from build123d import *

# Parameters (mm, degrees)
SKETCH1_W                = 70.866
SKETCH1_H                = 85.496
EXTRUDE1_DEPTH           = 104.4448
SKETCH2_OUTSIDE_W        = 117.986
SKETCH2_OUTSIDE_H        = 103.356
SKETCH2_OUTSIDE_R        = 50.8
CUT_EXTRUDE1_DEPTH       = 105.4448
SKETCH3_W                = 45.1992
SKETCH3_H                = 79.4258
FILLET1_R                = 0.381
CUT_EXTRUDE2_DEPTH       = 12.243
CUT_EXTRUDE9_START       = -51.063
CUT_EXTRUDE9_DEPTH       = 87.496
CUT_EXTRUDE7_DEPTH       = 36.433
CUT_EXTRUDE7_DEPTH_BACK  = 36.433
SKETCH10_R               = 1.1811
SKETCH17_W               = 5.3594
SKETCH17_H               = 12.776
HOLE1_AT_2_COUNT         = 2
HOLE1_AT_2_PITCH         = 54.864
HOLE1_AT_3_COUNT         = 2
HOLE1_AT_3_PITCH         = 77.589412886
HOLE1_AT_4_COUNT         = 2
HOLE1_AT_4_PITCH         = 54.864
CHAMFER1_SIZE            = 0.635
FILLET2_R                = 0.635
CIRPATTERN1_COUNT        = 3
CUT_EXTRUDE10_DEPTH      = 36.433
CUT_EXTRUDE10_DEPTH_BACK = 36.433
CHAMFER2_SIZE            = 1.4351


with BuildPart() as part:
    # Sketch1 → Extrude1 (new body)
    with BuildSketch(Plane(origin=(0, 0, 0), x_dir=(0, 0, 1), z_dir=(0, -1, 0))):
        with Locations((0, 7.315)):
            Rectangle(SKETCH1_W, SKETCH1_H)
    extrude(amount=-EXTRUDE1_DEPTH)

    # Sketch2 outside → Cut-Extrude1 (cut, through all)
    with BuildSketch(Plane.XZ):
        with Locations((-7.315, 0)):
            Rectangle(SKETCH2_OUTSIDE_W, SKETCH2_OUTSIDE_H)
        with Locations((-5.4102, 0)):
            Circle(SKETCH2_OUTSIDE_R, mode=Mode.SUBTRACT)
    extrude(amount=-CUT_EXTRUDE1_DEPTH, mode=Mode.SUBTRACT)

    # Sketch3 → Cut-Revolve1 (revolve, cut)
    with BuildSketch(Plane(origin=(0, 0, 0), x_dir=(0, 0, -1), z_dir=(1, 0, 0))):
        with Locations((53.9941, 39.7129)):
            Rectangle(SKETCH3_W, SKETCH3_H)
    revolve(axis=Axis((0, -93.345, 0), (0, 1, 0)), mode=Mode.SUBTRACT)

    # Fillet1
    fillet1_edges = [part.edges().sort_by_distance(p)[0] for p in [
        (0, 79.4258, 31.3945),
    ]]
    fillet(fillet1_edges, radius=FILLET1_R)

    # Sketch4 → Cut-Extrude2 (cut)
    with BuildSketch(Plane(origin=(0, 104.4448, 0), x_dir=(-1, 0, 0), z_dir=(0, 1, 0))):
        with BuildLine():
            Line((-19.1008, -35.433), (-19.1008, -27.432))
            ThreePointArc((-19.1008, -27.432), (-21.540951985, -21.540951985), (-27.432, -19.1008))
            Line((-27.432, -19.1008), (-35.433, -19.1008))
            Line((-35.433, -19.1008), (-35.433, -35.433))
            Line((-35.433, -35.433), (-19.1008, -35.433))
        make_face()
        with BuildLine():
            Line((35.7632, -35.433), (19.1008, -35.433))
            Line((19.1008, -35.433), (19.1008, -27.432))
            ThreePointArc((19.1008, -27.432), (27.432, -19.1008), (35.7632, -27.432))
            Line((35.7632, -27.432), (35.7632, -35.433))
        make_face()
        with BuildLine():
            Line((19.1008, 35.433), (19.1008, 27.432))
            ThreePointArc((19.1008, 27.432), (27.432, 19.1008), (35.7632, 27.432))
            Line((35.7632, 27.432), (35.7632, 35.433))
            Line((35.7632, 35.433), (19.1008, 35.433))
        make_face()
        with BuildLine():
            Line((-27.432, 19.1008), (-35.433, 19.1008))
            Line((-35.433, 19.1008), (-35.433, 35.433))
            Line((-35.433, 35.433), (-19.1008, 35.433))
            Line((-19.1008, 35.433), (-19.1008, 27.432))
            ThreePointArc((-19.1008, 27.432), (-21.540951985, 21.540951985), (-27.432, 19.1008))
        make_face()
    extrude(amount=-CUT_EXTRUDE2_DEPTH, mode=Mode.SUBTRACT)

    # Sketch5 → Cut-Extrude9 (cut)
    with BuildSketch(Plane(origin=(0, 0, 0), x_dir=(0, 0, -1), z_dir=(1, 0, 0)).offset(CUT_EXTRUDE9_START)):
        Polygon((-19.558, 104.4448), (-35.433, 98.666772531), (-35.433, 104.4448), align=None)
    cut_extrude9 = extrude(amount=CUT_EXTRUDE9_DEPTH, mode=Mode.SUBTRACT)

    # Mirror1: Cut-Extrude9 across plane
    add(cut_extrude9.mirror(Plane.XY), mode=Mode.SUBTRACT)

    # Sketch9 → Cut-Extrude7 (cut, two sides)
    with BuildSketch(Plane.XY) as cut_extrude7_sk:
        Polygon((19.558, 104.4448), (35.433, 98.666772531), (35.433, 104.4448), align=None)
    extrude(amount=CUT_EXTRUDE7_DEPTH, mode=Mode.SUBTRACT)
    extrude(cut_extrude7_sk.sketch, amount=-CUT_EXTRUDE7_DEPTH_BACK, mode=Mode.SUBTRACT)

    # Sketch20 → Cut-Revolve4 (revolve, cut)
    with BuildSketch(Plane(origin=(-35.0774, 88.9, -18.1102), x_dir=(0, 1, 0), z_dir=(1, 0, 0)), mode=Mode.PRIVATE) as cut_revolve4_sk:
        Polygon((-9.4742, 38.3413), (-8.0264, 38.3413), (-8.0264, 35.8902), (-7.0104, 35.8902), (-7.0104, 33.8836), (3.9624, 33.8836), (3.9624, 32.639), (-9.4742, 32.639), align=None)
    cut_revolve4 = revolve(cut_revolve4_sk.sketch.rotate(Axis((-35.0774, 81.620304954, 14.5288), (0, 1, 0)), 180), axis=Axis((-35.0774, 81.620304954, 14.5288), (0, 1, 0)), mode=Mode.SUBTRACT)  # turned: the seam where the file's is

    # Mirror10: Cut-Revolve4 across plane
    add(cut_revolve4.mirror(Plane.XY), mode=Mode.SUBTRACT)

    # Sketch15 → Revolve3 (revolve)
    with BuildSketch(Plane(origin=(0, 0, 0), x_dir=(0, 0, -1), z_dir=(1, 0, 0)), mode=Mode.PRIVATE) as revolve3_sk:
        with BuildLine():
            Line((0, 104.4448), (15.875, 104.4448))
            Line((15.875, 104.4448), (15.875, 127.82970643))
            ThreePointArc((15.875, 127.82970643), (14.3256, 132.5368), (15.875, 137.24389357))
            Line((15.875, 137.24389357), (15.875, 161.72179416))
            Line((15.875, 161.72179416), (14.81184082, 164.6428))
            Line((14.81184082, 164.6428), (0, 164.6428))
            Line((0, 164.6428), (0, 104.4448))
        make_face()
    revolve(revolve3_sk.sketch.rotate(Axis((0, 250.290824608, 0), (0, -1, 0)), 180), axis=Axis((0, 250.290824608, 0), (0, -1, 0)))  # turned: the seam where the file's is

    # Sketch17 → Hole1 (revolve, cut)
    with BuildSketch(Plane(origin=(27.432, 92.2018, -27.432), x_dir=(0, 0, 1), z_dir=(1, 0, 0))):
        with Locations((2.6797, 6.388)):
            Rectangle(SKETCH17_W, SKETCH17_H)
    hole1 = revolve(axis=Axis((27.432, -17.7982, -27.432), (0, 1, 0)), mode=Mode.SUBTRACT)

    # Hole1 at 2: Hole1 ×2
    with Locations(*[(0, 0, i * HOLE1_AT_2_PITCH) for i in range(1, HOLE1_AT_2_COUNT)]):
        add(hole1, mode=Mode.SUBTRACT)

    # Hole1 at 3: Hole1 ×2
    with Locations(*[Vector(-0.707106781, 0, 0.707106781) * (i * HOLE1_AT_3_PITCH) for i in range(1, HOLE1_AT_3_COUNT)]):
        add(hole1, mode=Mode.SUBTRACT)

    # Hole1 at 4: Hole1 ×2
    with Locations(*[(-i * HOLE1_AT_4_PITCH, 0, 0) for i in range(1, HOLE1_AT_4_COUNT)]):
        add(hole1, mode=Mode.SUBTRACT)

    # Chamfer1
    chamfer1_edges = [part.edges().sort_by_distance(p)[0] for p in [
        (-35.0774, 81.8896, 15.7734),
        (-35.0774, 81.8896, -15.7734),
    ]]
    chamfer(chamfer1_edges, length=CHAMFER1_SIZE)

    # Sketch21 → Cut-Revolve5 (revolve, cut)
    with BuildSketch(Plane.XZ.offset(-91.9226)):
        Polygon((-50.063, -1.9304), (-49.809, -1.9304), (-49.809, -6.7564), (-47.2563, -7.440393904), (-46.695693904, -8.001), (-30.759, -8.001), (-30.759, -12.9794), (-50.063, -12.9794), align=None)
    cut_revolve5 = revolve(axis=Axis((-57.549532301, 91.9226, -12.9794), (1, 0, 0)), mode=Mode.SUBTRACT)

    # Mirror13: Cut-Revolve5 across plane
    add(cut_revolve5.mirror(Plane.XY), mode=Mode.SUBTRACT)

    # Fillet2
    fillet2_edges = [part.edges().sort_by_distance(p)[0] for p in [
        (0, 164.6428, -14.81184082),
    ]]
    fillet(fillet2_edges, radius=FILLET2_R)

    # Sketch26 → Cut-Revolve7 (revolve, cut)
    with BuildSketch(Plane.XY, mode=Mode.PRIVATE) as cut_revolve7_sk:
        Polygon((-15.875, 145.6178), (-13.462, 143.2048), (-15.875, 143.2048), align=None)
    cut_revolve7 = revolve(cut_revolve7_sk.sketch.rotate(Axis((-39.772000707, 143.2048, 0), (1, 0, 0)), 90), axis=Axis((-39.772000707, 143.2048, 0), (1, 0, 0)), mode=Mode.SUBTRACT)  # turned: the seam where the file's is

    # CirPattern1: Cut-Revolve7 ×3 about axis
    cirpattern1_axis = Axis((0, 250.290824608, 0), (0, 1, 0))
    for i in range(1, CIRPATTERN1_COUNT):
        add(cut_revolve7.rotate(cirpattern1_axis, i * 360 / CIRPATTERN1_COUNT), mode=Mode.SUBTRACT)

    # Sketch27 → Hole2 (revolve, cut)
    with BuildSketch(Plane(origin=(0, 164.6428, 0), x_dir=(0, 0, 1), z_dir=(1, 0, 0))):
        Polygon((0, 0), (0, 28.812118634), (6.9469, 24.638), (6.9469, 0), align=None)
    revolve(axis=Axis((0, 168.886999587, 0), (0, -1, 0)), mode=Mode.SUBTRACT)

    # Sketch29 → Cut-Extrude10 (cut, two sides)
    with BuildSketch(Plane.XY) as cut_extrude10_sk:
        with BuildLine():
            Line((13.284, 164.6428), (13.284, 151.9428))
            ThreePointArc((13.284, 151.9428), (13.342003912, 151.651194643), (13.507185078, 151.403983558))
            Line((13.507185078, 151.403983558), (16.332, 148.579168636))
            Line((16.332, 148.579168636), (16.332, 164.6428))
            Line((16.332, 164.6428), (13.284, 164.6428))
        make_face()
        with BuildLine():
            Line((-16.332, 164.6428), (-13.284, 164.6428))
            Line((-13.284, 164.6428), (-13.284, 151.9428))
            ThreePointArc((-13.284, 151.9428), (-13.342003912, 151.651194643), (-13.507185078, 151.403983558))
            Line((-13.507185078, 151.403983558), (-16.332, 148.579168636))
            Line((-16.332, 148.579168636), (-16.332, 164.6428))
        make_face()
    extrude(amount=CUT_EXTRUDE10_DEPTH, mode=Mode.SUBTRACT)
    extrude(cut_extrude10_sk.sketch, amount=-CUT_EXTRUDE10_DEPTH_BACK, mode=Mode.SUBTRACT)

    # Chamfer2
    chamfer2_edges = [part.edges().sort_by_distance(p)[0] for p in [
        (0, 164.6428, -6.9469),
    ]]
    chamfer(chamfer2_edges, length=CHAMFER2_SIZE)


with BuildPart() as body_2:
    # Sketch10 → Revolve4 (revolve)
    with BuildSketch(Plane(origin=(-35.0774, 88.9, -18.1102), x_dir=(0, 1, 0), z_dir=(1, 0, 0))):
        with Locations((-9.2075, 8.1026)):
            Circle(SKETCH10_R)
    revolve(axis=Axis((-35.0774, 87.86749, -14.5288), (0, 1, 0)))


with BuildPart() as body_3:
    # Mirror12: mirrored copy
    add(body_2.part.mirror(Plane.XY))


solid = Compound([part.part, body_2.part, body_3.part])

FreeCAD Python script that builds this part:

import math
import FreeCAD as App
import Part
import Sketcher
from FreeCAD import Vector
Q = App.Units.Quantity


def edges_at(feature, points):
    """Names of the edges that pass closest to the given points."""
    edges = feature.Shape.Edges
    near = lambda p: min(range(len(edges)), key=lambda i: edges[i].distToShape(Part.Vertex(*p))[0])
    return sorted({f"Edge{near(p) + 1}" for p in points})


def add_polygon(sketch, points):
    """Adds a closed chain of lines whose ends are joined by coincident constraints."""
    first, n = sketch.GeometryCount, len(points)
    for a, b in zip(points, points[1:] + points[:1]):
        sketch.addGeometry(Part.LineSegment(App.Vector(*a, 0), App.Vector(*b, 0)), False)
    for i in range(n):
        sketch.addConstraint(Sketcher.Constraint("Coincident", first + i, 2, first + (i + 1) % n, 1))

doc = App.newDocument("Part")
body = doc.addObject("PartDesign::Body", "Body")

sketch1 = body.newObject("Sketcher::SketchObject", "Sketch")
sketch1.AttachmentSupport = (doc.getObject("XZ_Plane"), [""])
sketch1.MapMode = "FlatFace"
add_polygon(sketch1, [(-50, -35), (35, -35), (35, 35), (-50, 35)])
sketch1.addConstraint([
    Sketcher.Constraint("Horizontal", 0),
    Sketcher.Constraint("Vertical", 1),
    Sketcher.Constraint("Horizontal", 2),
    Sketcher.Constraint("Vertical", 3),
    Sketcher.Constraint("DistanceY", 1, 1, 1, 2, Q("2.79 in")),
    Sketcher.Constraint("DistanceX", -1, 1, 0, 2, Q("1.395 in")),
    Sketcher.Constraint("DistanceY", 0, 2, -1, 1, Q("1.395 in")),
    Sketcher.Constraint("DistanceX", 0, 1, 0, 2, 85.496),
])
pad1 = body.newObject("PartDesign::Pad", "Pad")
pad1.Profile = sketch1
pad1.Length = Q("4.112 in")
pad1.Reversed = True

sketch2 = body.newObject("Sketcher::SketchObject", "Sketch001")
sketch2.AttachmentSupport = (doc.getObject("XZ_Plane"), [""])
sketch2.MapMode = "FlatFace"
add_polygon(sketch2, [(-66, 52), (-66, -52), (52, -52), (52, 52)])
sketch2.addGeometry(Part.Circle(Vector(-5, 0, 0), Vector(0, 0, 1), 51), False)
sketch2.addConstraint([
    Sketcher.Constraint("Vertical", 0),
    Sketcher.Constraint("Horizontal", 1),
    Sketcher.Constraint("Vertical", 2),
    Sketcher.Constraint("Horizontal", 3),
    Sketcher.Constraint("PointOnObject", 4, 3, -1),
    Sketcher.Constraint("Diameter", 4, Q("4 in")),
    Sketcher.Constraint("DistanceX", 4, 3, -1, 1, Q("0.213 in")),
    Sketcher.Constraint("DistanceX", 1, 1, 1, 2, 117.986),
    Sketcher.Constraint("DistanceY", 0, 2, 0, 1, 103.356),
    Sketcher.Constraint("DistanceX", 0, 2, -1, 1, 66.308),
    Sketcher.Constraint("DistanceY", 0, 2, -1, 1, 51.678),
])
pocket1 = body.newObject("PartDesign::Pocket", "Pocket")
pocket1.Profile = sketch2
pocket1.Type = "ThroughAll"

sketch3 = body.newObject("Sketcher::SketchObject", "Sketch002")
sketch3.AttachmentSupport = (doc.getObject("YZ_Plane"), [""])
sketch3.MapMode = "FlatFace"
add_polygon(sketch3, [(79, -31), (0, -31), (0, -77), (79, -77)])
sketch3.addConstraint([
    Sketcher.Constraint("Horizontal", 0),
    Sketcher.Constraint("Vertical", 1),
    Sketcher.Constraint("Horizontal", 2),
    Sketcher.Constraint("Vertical", 3),
    Sketcher.Constraint("PointOnObject", 0, 2, -2),
    Sketcher.Constraint("DistanceX", 0, 2, 0, 1, Q("3.127 in")),
    Sketcher.Constraint("DistanceY", 1, 2, 1, 1, 45.1992),
    Sketcher.Constraint("DistanceY", 1, 2, -1, 1, Q("3.0155 in")),
])
groove = body.newObject("PartDesign::Groove", "Groove")
groove.Profile = sketch3
groove.ReferenceAxis = (sketch3, ["H_Axis"])
groove.Angle = 360
doc.recompute()

fillet = body.newObject("PartDesign::Fillet", "Fillet")
fillet.Base = (groove, edges_at(groove, [(0, 79.426, 31.395)]))
fillet.Radius = Q("0.015 in")

sketch4 = body.newObject("Sketcher::SketchObject", "Sketch003")
sketch4.AttachmentSupport = (doc.getObject("XZ_Plane"), [""])
sketch4.MapMode = "FlatFace"
sketch4.AttachmentOffset = App.Placement(Vector(0, 0, -4.112 * 25.4), App.Rotation())
sketch4.addGeometry([
    Part.LineSegment(Vector(19, -35, 0), Vector(19, -27, 0)),
    Part.ArcOfCircle(Part.Circle(Vector(27, -27, 0), Vector(0, 0, 1), 8), math.radians(90), math.radians(180)),
    Part.LineSegment(Vector(27, -19, 0), Vector(35, -19, 0)),
    Part.LineSegment(Vector(35, -19, 0), Vector(35, -35, 0)),
    Part.LineSegment(Vector(35, -35, 0), Vector(19, -35, 0)),
    Part.LineSegment(Vector(-19, -35, 0), Vector(-36, -35, 0)),
    Part.LineSegment(Vector(-36, -35, 0), Vector(-36, -27, 0)),
    Part.ArcOfCircle(Part.Circle(Vector(-27, -27, 0), Vector(0, 0, 1), 8), math.radians(0), math.radians(180)),
    Part.LineSegment(Vector(-19, -27, 0), Vector(-19, -35, 0)),
    Part.LineSegment(Vector(-19, 35, 0), Vector(-19, 27, 0)),
    Part.ArcOfCircle(Part.Circle(Vector(-27, 27, 0), Vector(0, 0, 1), 8), math.radians(180), math.radians(360)),
    Part.LineSegment(Vector(-36, 27, 0), Vector(-36, 35, 0)),
    Part.LineSegment(Vector(-36, 35, 0), Vector(-19, 35, 0)),
    Part.LineSegment(Vector(35, 19, 0), Vector(27, 19, 0)),
    Part.ArcOfCircle(Part.Circle(Vector(27, 27, 0), Vector(0, 0, 1), 8), math.radians(-180), math.radians(-90)),
    Part.LineSegment(Vector(19, 27, 0), Vector(19, 35, 0)),
    Part.LineSegment(Vector(19, 35, 0), Vector(35, 35, 0)),
    Part.LineSegment(Vector(35, 35, 0), Vector(35, 19, 0)),
], False)
sketch4.addConstraint([
    Sketcher.Constraint("Tangent", 0, 2, 1, 2),
    Sketcher.Constraint("Tangent", 1, 1, 2, 1),
    Sketcher.Constraint("Coincident", 2, 2, 3, 1),
    Sketcher.Constraint("Coincident", 3, 2, 4, 1),
    Sketcher.Constraint("Coincident", 4, 2, 0, 1),
    Sketcher.Constraint("Coincident", 5, 2, 6, 1),
    Sketcher.Constraint("Tangent", 6, 2, 7, 2),
    Sketcher.Constraint("Tangent", 7, 1, 8, 1),
    Sketcher.Constraint("Coincident", 8, 2, 5, 1),
    Sketcher.Constraint("Tangent", 9, 2, 10, 2),
    Sketcher.Constraint("Tangent", 10, 1, 11, 1),
    Sketcher.Constraint("Coincident", 11, 2, 12, 1),
    Sketcher.Constraint("Coincident", 12, 2, 9, 1),
    Sketcher.Constraint("Tangent", 13, 2, 14, 2),
    Sketcher.Constraint("Tangent", 14, 1, 15, 1),
    Sketcher.Constraint("Coincident", 15, 2, 16, 1),
    Sketcher.Constraint("Coincident", 16, 2, 17, 1),
    Sketcher.Constraint("Coincident", 17, 2, 13, 1),
    Sketcher.Constraint("Vertical", 0),
    Sketcher.Constraint("Horizontal", 2),
    Sketcher.Constraint("Vertical", 3),
    Sketcher.Constraint("Horizontal", 4),
    Sketcher.Constraint("Horizontal", 5),
    Sketcher.Constraint("Vertical", 6),
    Sketcher.Constraint("Vertical", 8),
    Sketcher.Constraint("Vertical", 9),
    Sketcher.Constraint("Vertical", 11),
    Sketcher.Constraint("Horizontal", 12),
    Sketcher.Constraint("Horizontal", 13),
    Sketcher.Constraint("Vertical", 15),
    Sketcher.Constraint("Horizontal", 16),
    Sketcher.Constraint("Vertical", 17),
    Sketcher.Constraint("Equal", 1, 7),
    Sketcher.Constraint("Equal", 7, 10),
    Sketcher.Constraint("Equal", 10, 14),
    Sketcher.Constraint("Symmetric", 1, 3, 10, 3, -1, 1),
    Sketcher.Constraint("Symmetric", 7, 3, 14, 3, -1, 1),
    Sketcher.Constraint("Symmetric", 1, 3, 7, 3, -2),
    Sketcher.Constraint("Symmetric", 3, 2, 16, 2, -1),
    Sketcher.Constraint("Horizontal", 4, 2, 5, 2),
    Sketcher.Constraint("Horizontal", 12, 2, 15, 2),
    Sketcher.Constraint("Equal", 13, 0),
    Sketcher.Constraint("Radius", 1, Q("0.328 in")),
    Sketcher.Constraint("DistanceX", 2, 1, 2, 2, Q("0.315 in")),
    Sketcher.Constraint("DistanceX", -1, 1, 1, 3, Q("1.08 in")),
    Sketcher.Constraint("DistanceY", 1, 3, -1, 1, Q("1.08 in")),
])
pocket2 = body.newObject("PartDesign::Pocket", "Pocket001")
pocket2.Profile = sketch4
pocket2.Length = 12.243
pocket2.Reversed = True

sketch5 = body.newObject("Sketcher::SketchObject", "Sketch004")
sketch5.AttachmentSupport = (doc.getObject("YZ_Plane"), [""])
sketch5.MapMode = "FlatFace"
sketch5.AttachmentOffset = App.Placement(Vector(0, 0, -51.063), App.Rotation())
add_polygon(sketch5, [(99, 35), (104, 20), (104, 35)])
sketch5.addConstraint([
    Sketcher.Constraint("Vertical", 1),
    Sketcher.Constraint("Horizontal", 2),
    Sketcher.Constraint("Angle", 0, Q("-70 deg")),
    Sketcher.Constraint("DistanceY", 1, 1, 1, 2, Q("0.625 in")),
    Sketcher.Constraint("DistanceY", -1, 1, 0, 2, Q("0.77 in")),
    Sketcher.Constraint("DistanceX", -1, 1, 0, 2, Q("4.112 in")),
])
pocket3 = body.newObject("PartDesign::Pocket", "Pocket002")
pocket3.Profile = sketch5
pocket3.Length = 87.496
pocket3.Reversed = True
doc.recompute()

mirrored = body.newObject("PartDesign::Mirrored", "Mirrored")
mirrored.Originals = [pocket3]
mirrored.MirrorPlane = (doc.getObject("XY_Plane"), [""])
body.Tip = mirrored

sketch6 = body.newObject("Sketcher::SketchObject", "Sketch005")
sketch6.AttachmentSupport = (doc.getObject("XY_Plane"), [""])
sketch6.MapMode = "FlatFace"
add_polygon(sketch6, [(20, 104), (35, 99), (35, 104)])
sketch6.addConstraint([
    Sketcher.Constraint("Vertical", 1),
    Sketcher.Constraint("Horizontal", 2),
    Sketcher.Constraint("Angle", 0, Q("-20 deg")),
    Sketcher.Constraint("DistanceX", 2, 2, 2, 1, Q("0.625 in")),
    Sketcher.Constraint("DistanceX", -1, 1, 2, 2, Q("0.77 in")),
    Sketcher.Constraint("DistanceY", -1, 1, 1, 2, Q("4.112 in")),
])
pocket4 = body.newObject("PartDesign::Pocket", "Pocket003")
pocket4.Profile = sketch6
pocket4.Type = "ThroughAll"
pocket4.Midplane = True

sketch7 = body.newObject("Sketcher::SketchObject", "Sketch006")
sketch7.AttachmentSupport = (doc.getObject("YZ_Plane"), [""])
sketch7.MapMode = "FlatFace"
sketch7.AttachmentOffset = App.Placement(Vector(0, 0, -1.381 * 25.4), App.Rotation())
add_polygon(sketch7, [(80.9, 20.2), (79.4, 20.2), (79.4, 14.5), (92.9, 14.5), (92.9, 15.8), (81.9, 15.8), (81.9, 17.8), (80.9, 17.8)])
sketch7.addGeometry(Part.LineSegment(Vector(79.4, 14.5, 0), Vector(92.9, 14.5, 0)), True)
sketch7.addConstraint([
    Sketcher.Constraint("Horizontal", 0),
    Sketcher.Constraint("Vertical", 1),
    Sketcher.Constraint("Horizontal", 2),
    Sketcher.Constraint("Vertical", 3),
    Sketcher.Constraint("Horizontal", 4),
    Sketcher.Constraint("Vertical", 5),
    Sketcher.Constraint("Horizontal", 6),
    Sketcher.Constraint("Vertical", 7),
    Sketcher.Constraint("Horizontal", 8),
    Sketcher.Constraint("Coincident", 8, 1, 1, 2),
    Sketcher.Constraint("Vertical", 3, 2, 8, 2),
    Sketcher.Constraint("DistanceX", 6, 2, 6, 1, Q("0.04 in")),
    Sketcher.Constraint("DistanceY", -1, 1, 5, 2, Q("0.7 in")),
    Sketcher.Constraint("DistanceX", 0, 2, 0, 1, Q("0.057 in")),
    Sketcher.Constraint("DistanceX", 2, 1, 2, 2, Q("0.529 in")),
    Sketcher.Constraint("DistanceY", 3, 1, 3, 2, Q("0.049 in")),
    Sketcher.Constraint("DistanceY", 5, 1, 5, 2, Q("0.079 in")),
    Sketcher.Constraint("DistanceY", 1, 2, 1, 1, Q("0.2245 in")),
    Sketcher.Constraint("DistanceX", -1, 1, 0, 2, Q("3.127 in")),
])
groove2 = body.newObject("PartDesign::Groove", "Groove001")
groove2.Profile = sketch7
groove2.ReferenceAxis = (sketch7, ["Axis0"])
groove2.Angle = 360
doc.recompute()

mirrored2 = body.newObject("PartDesign::Mirrored", "Mirrored001")
mirrored2.Originals = [groove2]
mirrored2.MirrorPlane = (doc.getObject("XY_Plane"), [""])
body.Tip = mirrored2

sketch8 = body.newObject("Sketcher::SketchObject", "Sketch007")
sketch8.AttachmentSupport = (doc.getObject("YZ_Plane"), [""])
sketch8.MapMode = "FlatFace"
sketch8.addGeometry([
    Part.LineSegment(Vector(104.4, 0, 0), Vector(104.4, -15.9, 0)),
    Part.LineSegment(Vector(104.4, -15.9, 0), Vector(127.8, -15.9, 0)),
    Part.ArcOfCircle(Part.Circle(Vector(132.5, -22.3, 0), Vector(0, 0, 1), 7.9), math.radians(54), math.radians(126)),
    Part.LineSegment(Vector(137.2, -15.9, 0), Vector(161.7, -15.9, 0)),
    Part.LineSegment(Vector(161.7, -15.9, 0), Vector(164.6, -14.8, 0)),
    Part.LineSegment(Vector(164.6, -14.8, 0), Vector(164.6, 0, 0)),
    Part.LineSegment(Vector(164.6, 0, 0), Vector(104.4, 0, 0)),
], False)
sketch8.addConstraint([
    Sketcher.Constraint("Coincident", 0, 2, 1, 1),
    Sketcher.Constraint("Coincident", 1, 2, 2, 2),
    Sketcher.Constraint("Coincident", 2, 1, 3, 1),
    Sketcher.Constraint("Coincident", 3, 2, 4, 1),
    Sketcher.Constraint("Coincident", 4, 2, 5, 1),
    Sketcher.Constraint("Coincident", 5, 2, 6, 1),
    Sketcher.Constraint("Coincident", 6, 2, 0, 1),
    Sketcher.Constraint("Vertical", 0),
    Sketcher.Constraint("Horizontal", 1),
    Sketcher.Constraint("Horizontal", 3),
    Sketcher.Constraint("Vertical", 5),
    Sketcher.Constraint("Horizontal", 6),
    Sketcher.Constraint("PointOnObject", 5, 2, -1),
    Sketcher.Constraint("Horizontal", 1, 2, 2, 1),
    Sketcher.Constraint("Angle", 4, Q("20 deg")),
    Sketcher.Constraint("Radius", 2, Q("0.312 in")),
    Sketcher.Constraint("DistanceX", 6, 2, 6, 1, Q("2.37 in")),
    Sketcher.Constraint("DistanceY", 0, 2, 0, 1, Q("0.625 in")),
    Sketcher.Constraint("DistanceY", 2, 3, -1, 1, Q("0.876 in")),
    Sketcher.Constraint("DistanceX", -1, 1, 0, 2, Q("4.112 in")),
    Sketcher.Constraint("DistanceX", 3, 1, 3, 2, 24.477901),
    Sketcher.Constraint("DistanceY", 5, 1, 5, 2, 14.811841),
])
revolution = body.newObject("PartDesign::Revolution", "Revolution")
revolution.Profile = sketch8
revolution.ReferenceAxis = (sketch8, ["H_Axis"])
revolution.Angle = 360

sketch9 = body.newObject("Sketcher::SketchObject", "Sketch008")
sketch9.AttachmentSupport = (doc.getObject("YZ_Plane"), [""])
sketch9.MapMode = "FlatFace"
sketch9.AttachmentOffset = App.Placement(Vector(0, 0, 1.08 * 25.4), App.Rotation())
add_polygon(sketch9, [(79, -27), (92, -27), (92, -22), (79, -22)])
sketch9.addGeometry(Part.LineSegment(Vector(79, -27, 0), Vector(92, -27, 0)), True)
sketch9.addConstraint([
    Sketcher.Constraint("Horizontal", 0),
    Sketcher.Constraint("Vertical", 1),
    Sketcher.Constraint("Horizontal", 2),
    Sketcher.Constraint("Vertical", 3),
    Sketcher.Constraint("Horizontal", 4),
    Sketcher.Constraint("Coincident", 4, 1, 3, 2),
    Sketcher.Constraint("Vertical", 1, 2, 4, 2),
    Sketcher.Constraint("DistanceY", 1, 1, 1, 2, Q("0.211 in")),
    Sketcher.Constraint("DistanceY", 0, 2, -1, 1, Q("1.08 in")),
    Sketcher.Constraint("DistanceX", -1, 1, 2, 2, Q("3.127 in")),
    Sketcher.Constraint("DistanceX", 0, 1, 0, 2, 12.776),
])
groove3 = body.newObject("PartDesign::Groove", "Groove002")
groove3.Profile = sketch9
groove3.ReferenceAxis = (sketch9, ["Axis0"])
groove3.Angle = 360
doc.recompute()

linearpattern = body.newObject("PartDesign::LinearPattern", "LinearPattern")
linearpattern.Originals = [groove3]
linearpattern.Direction = (doc.getObject("Z_Axis"), [""])
linearpattern.Mode = "offset"
linearpattern.Offset = Q("2.16 in")
linearpattern.Occurrences = 2
body.Tip = linearpattern
doc.recompute()

datumline = body.newObject("PartDesign::Line", "DatumLine")
datumline.Placement = App.Placement(Vector(0, 0, 0), App.Rotation(Vector(0, 0, 1), Vector(-0.707106781, 0, 0.707106781)))
linearpattern2 = body.newObject("PartDesign::LinearPattern", "LinearPattern001")
linearpattern2.Originals = [groove3]
linearpattern2.Direction = (datumline, [""])
linearpattern2.Mode = "offset"
linearpattern2.Offset = 77.589413
linearpattern2.Occurrences = 2
body.Tip = linearpattern2
doc.recompute()

linearpattern3 = body.newObject("PartDesign::LinearPattern", "LinearPattern002")
linearpattern3.Originals = [groove3]
linearpattern3.Direction = (doc.getObject("X_Axis"), [""])
linearpattern3.Mode = "offset"
linearpattern3.Offset = Q("2.16 in")
linearpattern3.Occurrences = 2
linearpattern3.Reversed = True
body.Tip = linearpattern3
doc.recompute()

chamfer = body.newObject("PartDesign::Chamfer", "Chamfer")
chamfer.Base = (linearpattern3, edges_at(linearpattern3, [(-35.077, 81.89, 15.773), (-35.077, 81.89, -15.773)]))
chamfer.Size = Q("0.025 in")

sketch10 = body.newObject("Sketcher::SketchObject", "Sketch009")
sketch10.AttachmentSupport = (doc.getObject("XZ_Plane"), [""])
sketch10.MapMode = "FlatFace"
sketch10.AttachmentOffset = App.Placement(Vector(0, 0, -3.619 * 25.4), App.Rotation())
add_polygon(sketch10, [(-49.81, -1.93), (-50.06, -1.93), (-50.06, -12.98), (-30.76, -12.98), (-30.76, -8), (-46.7, -8), (-47.26, -7.44), (-49.81, -6.76)])
sketch10.addGeometry(Part.LineSegment(Vector(-50.06, -12.98, 0), Vector(-30.76, -12.98, 0)), True)
sketch10.addConstraint([
    Sketcher.Constraint("Horizontal", 0),
    Sketcher.Constraint("Vertical", 1),
    Sketcher.Constraint("Horizontal", 2),
    Sketcher.Constraint("Vertical", 3),
    Sketcher.Constraint("Horizontal", 4),
    Sketcher.Constraint("Vertical", 7),
    Sketcher.Constraint("Horizontal", 8),
    Sketcher.Constraint("Coincident", 8, 1, 1, 2),
    Sketcher.Constraint("Vertical", 3, 2, 8, 2),
    Sketcher.Constraint("Angle", 5, Q("135 deg")),
    Sketcher.Constraint("Angle", 6, Q("165 deg")),
    Sketcher.Constraint("DistanceX", 0, 2, 0, 1, Q("0.01 in")),
    Sketcher.Constraint("DistanceX", 2, 1, 2, 2, Q("0.76 in")),
    Sketcher.Constraint("DistanceY", 7, 1, 7, 2, Q("0.19 in")),
    Sketcher.Constraint("DistanceY", 1, 2, 1, 1, Q("0.435 in")),
    Sketcher.Constraint("DistanceY", 3, 1, 3, 2, Q("0.196 in")),
    Sketcher.Constraint("DistanceY", 0, 2, -1, 1, Q("0.076 in")),
    Sketcher.Constraint("DistanceX", 0, 2, 5, 2, Q("0.1105 in")),
    Sketcher.Constraint("DistanceX", 0, 2, -1, 1, 50.063),
])
groove4 = body.newObject("PartDesign::Groove", "Groove003")
groove4.Profile = sketch10
groove4.ReferenceAxis = (sketch10, ["Axis0"])
groove4.Angle = 360
doc.recompute()

mirrored3 = body.newObject("PartDesign::Mirrored", "Mirrored002")
mirrored3.Originals = [groove4]
mirrored3.MirrorPlane = (doc.getObject("XY_Plane"), [""])
body.Tip = mirrored3
doc.recompute()

fillet2 = body.newObject("PartDesign::Fillet", "Fillet001")
fillet2.Base = (mirrored3, edges_at(mirrored3, [(0, 164.643, -14.812)]))
fillet2.Radius = Q("0.025 in")

sketch11 = body.newObject("Sketcher::SketchObject", "Sketch010")
sketch11.AttachmentSupport = (doc.getObject("XY_Plane"), [""])
sketch11.MapMode = "FlatFace"
add_polygon(sketch11, [(-13.5, 143.2), (-15.9, 145.6), (-15.9, 143.2)])
sketch11.addGeometry(Part.LineSegment(Vector(-15.9, 143.2, 0), Vector(-13.5, 143.2, 0)), True)
sketch11.addConstraint([
    Sketcher.Constraint("Vertical", 1),
    Sketcher.Constraint("Horizontal", 2),
    Sketcher.Constraint("Horizontal", 3),
    Sketcher.Constraint("Coincident", 3, 1, 1, 2),
    Sketcher.Constraint("Equal", 2, 3),
    Sketcher.Constraint("Equal", 3, 1),
    Sketcher.Constraint("DistanceX", 2, 1, 2, 2, Q("0.095 in")),
    Sketcher.Constraint("DistanceX", 2, 2, -1, 1, Q("0.53 in")),
    Sketcher.Constraint("DistanceY", -1, 1, 0, 2, 145.6178),
])
groove5 = body.newObject("PartDesign::Groove", "Groove004")
groove5.Profile = sketch11
groove5.ReferenceAxis = (sketch11, ["Axis0"])
groove5.Angle = 360
doc.recompute()

polarpattern = body.newObject("PartDesign::PolarPattern", "PolarPattern")
polarpattern.Originals = [groove5]
polarpattern.Axis = (doc.getObject("Y_Axis"), [""])
polarpattern.Angle = 360
polarpattern.Occurrences = 3
body.Tip = polarpattern

sketch12 = body.newObject("Sketcher::SketchObject", "Sketch011")
sketch12.AttachmentSupport = (doc.getObject("YZ_Plane"), [""])
sketch12.MapMode = "FlatFace"
add_polygon(sketch12, [(136, 0), (165, 0), (165, 7), (140, 7)])
sketch12.addConstraint([
    Sketcher.Constraint("Horizontal", 0),
    Sketcher.Constraint("Vertical", 1),
    Sketcher.Constraint("Horizontal", 2),
    Sketcher.Constraint("PointOnObject", 0, 2, -1),
    Sketcher.Constraint("Angle", 3, Q("-121 deg")),
    Sketcher.Constraint("DistanceX", 2, 2, 2, 1, Q("0.97 in")),
    Sketcher.Constraint("DistanceY", 1, 1, 1, 2, Q("0.2735 in")),
    Sketcher.Constraint("DistanceX", -1, 1, 0, 2, Q("6.482 in")),
])
groove6 = body.newObject("PartDesign::Groove", "Groove005")
groove6.Profile = sketch12
groove6.ReferenceAxis = (sketch12, ["H_Axis"])
groove6.Angle = 360

sketch13 = body.newObject("Sketcher::SketchObject", "Sketch012")
sketch13.AttachmentSupport = (doc.getObject("XY_Plane"), [""])
sketch13.MapMode = "FlatFace"
sketch13.addGeometry([
    Part.LineSegment(Vector(13.3, 164.6, 0), Vector(13.3, 151.9, 0)),
    Part.ArcOfCircle(Part.Circle(Vector(14, 151.9, 0), Vector(0, 0, 1), 0.8), math.radians(180), math.radians(225)),
    Part.LineSegment(Vector(13.5, 151.4, 0), Vector(16.3, 148.6, 0)),
    Part.LineSegment(Vector(16.3, 148.6, 0), Vector(16.3, 164.6, 0)),
    Part.LineSegment(Vector(16.3, 164.6, 0), Vector(13.3, 164.6, 0)),
    Part.LineSegment(Vector(-13.3, 164.6, 0), Vector(-16.3, 164.6, 0)),
    Part.LineSegment(Vector(-16.3, 164.6, 0), Vector(-16.3, 148.6, 0)),
    Part.LineSegment(Vector(-16.3, 148.6, 0), Vector(-13.5, 151.4, 0)),
    Part.ArcOfCircle(Part.Circle(Vector(-14, 151.9, 0), Vector(0, 0, 1), 0.8), math.radians(-45), math.radians(0)),
    Part.LineSegment(Vector(-13.3, 151.9, 0), Vector(-13.3, 164.6, 0)),
], False)
sketch13.addConstraint([
    Sketcher.Constraint("Tangent", 0, 2, 1, 1),
    Sketcher.Constraint("Tangent", 1, 2, 2, 1),
    Sketcher.Constraint("Coincident", 2, 2, 3, 1),
    Sketcher.Constraint("Coincident", 3, 2, 4, 1),
    Sketcher.Constraint("Coincident", 4, 2, 0, 1),
    Sketcher.Constraint("Coincident", 5, 2, 6, 1),
    Sketcher.Constraint("Coincident", 6, 2, 7, 1),
    Sketcher.Constraint("Tangent", 7, 2, 8, 1),
    Sketcher.Constraint("Tangent", 8, 2, 9, 1),
    Sketcher.Constraint("Coincident", 9, 2, 5, 1),
    Sketcher.Constraint("Vertical", 0),
    Sketcher.Constraint("Vertical", 3),
    Sketcher.Constraint("Horizontal", 4),
    Sketcher.Constraint("Horizontal", 5),
    Sketcher.Constraint("Vertical", 6),
    Sketcher.Constraint("Vertical", 9),
    Sketcher.Constraint("Equal", 1, 8),
    Sketcher.Constraint("Symmetric", 1, 3, 8, 3, -2),
    Sketcher.Constraint("Symmetric", 3, 2, 5, 2, -2),
    Sketcher.Constraint("Perpendicular", 2, 7),
    Sketcher.Constraint("Horizontal", 2, 2, 6, 2),
    Sketcher.Constraint("Radius", 1, Q("0.0300001 in")),
    Sketcher.Constraint("DistanceY", 0, 2, 0, 1, Q("0.5 in")),
    Sketcher.Constraint("DistanceX", 4, 2, 4, 1, Q("0.12 in")),
    Sketcher.Constraint("DistanceY", -1, 1, 1, 3, Q("5.982 in")),
    Sketcher.Constraint("DistanceX", -1, 1, 1, 3, 14.046002),
])
pocket5 = body.newObject("PartDesign::Pocket", "Pocket004")
pocket5.Profile = sketch13
pocket5.Type = "ThroughAll"
pocket5.Midplane = True
doc.recompute()

chamfer2 = body.newObject("PartDesign::Chamfer", "Chamfer001")
chamfer2.Base = (pocket5, edges_at(pocket5, [(0, 164.643, -6.947)]))
chamfer2.Size = Q("0.0565 in")
body2 = doc.addObject("PartDesign::Body", "Body001")

sketch14 = body2.newObject("Sketcher::SketchObject", "Sketch013")
sketch14.AttachmentSupport = (doc.getObject("YZ_Plane001"), [""])
sketch14.MapMode = "FlatFace"
sketch14.AttachmentOffset = App.Placement(Vector(0, 0, -1.381 * 25.4), App.Rotation())
sketch14.addGeometry(Part.Circle(Vector(79.7, -10, 0), Vector(0, 0, 1), 1.2), False)
sketch14.addGeometry(Part.LineSegment(Vector(79.7, -14.5, 0), Vector(89.7, -14.5, 0)), True)
sketch14.addConstraint([
    Sketcher.Constraint("Horizontal", 1),
    Sketcher.Constraint("Vertical", 0, 3, 1, 1),
    Sketcher.Constraint("Diameter", 0, Q("0.093 in")),
    Sketcher.Constraint("DistanceY", 0, 3, -1, 1, Q("0.394 in")),
    Sketcher.Constraint("DistanceY", 1, 1, -1, 1, Q("0.572 in")),
    Sketcher.Constraint("DistanceX", 1, 1, 1, 2, 10.0),
    Sketcher.Constraint("DistanceX", -1, 1, 0, 3, Q("3.1375 in")),
])
revolution2 = body2.newObject("PartDesign::Revolution", "Revolution001")
revolution2.Profile = sketch14
revolution2.ReferenceAxis = (sketch14, ["Axis0"])
revolution2.Angle = 360
body3 = doc.addObject("PartDesign::Body", "Body002")
doc.recompute()

mirroring = doc.addObject("Part::Mirroring", "Mirroring")
mirroring.Source = body2
mirroring.Base = Vector(0, 0, 0)
mirroring.Normal = Vector(0, 0, 1)
body3.BaseFeature = mirroring
doc.recompute()
mirroring.Visibility = False

doc.recompute()
